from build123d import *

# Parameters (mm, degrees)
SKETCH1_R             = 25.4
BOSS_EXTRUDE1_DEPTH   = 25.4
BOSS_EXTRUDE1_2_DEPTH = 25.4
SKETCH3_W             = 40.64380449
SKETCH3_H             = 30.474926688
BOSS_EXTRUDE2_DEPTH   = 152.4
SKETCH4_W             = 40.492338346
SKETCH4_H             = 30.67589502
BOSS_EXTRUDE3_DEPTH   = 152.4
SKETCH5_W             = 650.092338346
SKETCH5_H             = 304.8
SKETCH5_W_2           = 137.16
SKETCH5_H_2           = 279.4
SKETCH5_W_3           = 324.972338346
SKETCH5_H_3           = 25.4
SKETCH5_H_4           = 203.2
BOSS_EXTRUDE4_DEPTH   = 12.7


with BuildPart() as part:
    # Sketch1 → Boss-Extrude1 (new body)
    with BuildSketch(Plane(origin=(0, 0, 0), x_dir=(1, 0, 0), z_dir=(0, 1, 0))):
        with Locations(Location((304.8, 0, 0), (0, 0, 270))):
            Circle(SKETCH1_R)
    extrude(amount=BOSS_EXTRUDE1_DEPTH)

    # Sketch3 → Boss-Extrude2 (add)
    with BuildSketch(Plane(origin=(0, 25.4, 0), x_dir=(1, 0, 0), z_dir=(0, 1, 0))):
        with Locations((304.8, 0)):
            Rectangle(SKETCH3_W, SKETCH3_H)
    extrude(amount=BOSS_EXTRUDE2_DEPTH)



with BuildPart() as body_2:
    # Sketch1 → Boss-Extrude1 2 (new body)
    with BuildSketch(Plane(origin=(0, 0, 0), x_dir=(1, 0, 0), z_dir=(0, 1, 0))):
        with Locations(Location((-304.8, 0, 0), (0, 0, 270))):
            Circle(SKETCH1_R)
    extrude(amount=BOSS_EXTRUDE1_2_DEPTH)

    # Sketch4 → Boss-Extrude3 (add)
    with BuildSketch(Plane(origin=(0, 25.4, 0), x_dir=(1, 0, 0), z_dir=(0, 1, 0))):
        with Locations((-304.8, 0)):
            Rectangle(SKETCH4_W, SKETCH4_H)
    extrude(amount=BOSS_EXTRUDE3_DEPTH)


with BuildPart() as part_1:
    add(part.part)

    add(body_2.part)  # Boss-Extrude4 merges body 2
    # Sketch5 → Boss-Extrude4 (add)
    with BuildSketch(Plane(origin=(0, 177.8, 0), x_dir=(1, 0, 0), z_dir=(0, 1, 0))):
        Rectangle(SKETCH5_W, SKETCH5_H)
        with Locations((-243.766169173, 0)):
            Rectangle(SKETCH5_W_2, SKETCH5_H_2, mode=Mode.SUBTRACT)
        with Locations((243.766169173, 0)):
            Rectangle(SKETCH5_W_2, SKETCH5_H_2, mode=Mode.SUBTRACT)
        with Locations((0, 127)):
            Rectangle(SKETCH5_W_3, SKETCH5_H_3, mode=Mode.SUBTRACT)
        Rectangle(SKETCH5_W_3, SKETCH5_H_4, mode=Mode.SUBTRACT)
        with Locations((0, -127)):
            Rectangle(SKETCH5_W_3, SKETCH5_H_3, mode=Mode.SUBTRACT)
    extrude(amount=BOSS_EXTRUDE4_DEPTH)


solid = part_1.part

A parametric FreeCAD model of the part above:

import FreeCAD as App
import Part
import Sketcher
from FreeCAD import Vector
Q = App.Units.Quantity


def add_polygon(sketch, points):
    """Adds a closed chain of lines whose ends are joined by coincident constraints."""
    first, n = sketch.GeometryCount, len(points)
    for a, b in zip(points, points[1:] + points[:1]):
        sketch.addGeometry(Part.LineSegment(App.Vector(*a, 0), App.Vector(*b, 0)), False)
    for i in range(n):
        sketch.addConstraint(Sketcher.Constraint("Coincident", first + i, 2, first + (i + 1) % n, 1))

doc = App.newDocument("Part")
body = doc.addObject("PartDesign::Body", "Body")

# Sketch on XZ plane
sketch1 = body.newObject("Sketcher::SketchObject", "Sketch")
sketch1.AttachmentSupport = (doc.getObject("XZ_Plane"), [""])
sketch1.MapMode = "FlatFace"
sketch1.addGeometry(Part.Circle(Vector(304.8, 0, 0), Vector(0, 0, 1), 25.4), False)
sketch1.addConstraint([
    Sketcher.Constraint("PointOnObject", 0, 3, -1),
    Sketcher.Constraint("Diameter", 0, Q("2 in")),
    Sketcher.Constraint("DistanceX", -1, 1, 0, 3, Q("12 in")),
])
pad1 = body.newObject("PartDesign::Pad", "Pad")
pad1.Profile = sketch1
pad1.Length = Q("1 in")
pad1.Reversed = True

# Sketch on XZ plane
sketch2 = body.newObject("Sketcher::SketchObject", "Sketch001")
sketch2.AttachmentSupport = (doc.getObject("XZ_Plane"), [""])
sketch2.MapMode = "FlatFace"
sketch2.AttachmentOffset = App.Placement(Vector(0, 0, -1 * 25.4), App.Rotation())
add_polygon(sketch2, [(284.478098, -15.237463), (284.478098, 15.237463), (325.121902, 15.237463), (325.121902, -15.237463)])  # lines 0-3
sketch2.addConstraint([
    Sketcher.Constraint("Vertical", 0),
    Sketcher.Constraint("Horizontal", 1),
    Sketcher.Constraint("Vertical", 2),
    Sketcher.Constraint("Horizontal", 3),
    Sketcher.Constraint("DistanceY", -1, 1, 0, 2, Q("0.5999001 in")),
    Sketcher.Constraint("DistanceY", 2, 2, -1, 1, Q("0.5999001 in")),
    Sketcher.Constraint("DistanceX", 1, 1, 1, 2, Q("40.643804 mm")),
    Sketcher.Constraint("DistanceX", -1, 1, 0, 2, Q("284.478098 mm")),
])
pad2 = body.newObject("PartDesign::Pad", "Pad001")
pad2.Profile = sketch2
pad2.Length = Q("6 in")
pad2.Reversed = True
body2 = doc.addObject("PartDesign::Body", "Body001")

# Sketch on XZ plane
sketch3 = body2.newObject("Sketcher::SketchObject", "Sketch002")
sketch3.AttachmentSupport = (doc.getObject("XZ_Plane001"), [""])
sketch3.MapMode = "FlatFace"
sketch3.addGeometry(Part.Circle(Vector(-304.8, 0, 0), Vector(0, 0, 1), 25.4), False)
sketch3.addConstraint([
    Sketcher.Constraint("PointOnObject", 0, 3, -1),
    Sketcher.Constraint("Diameter", 0, Q("2 in")),
    Sketcher.Constraint("DistanceX", 0, 3, -1, 1, Q("12 in")),
])
pad3 = body2.newObject("PartDesign::Pad", "Pad002")
pad3.Profile = sketch3
pad3.Length = Q("1 in")
pad3.Reversed = True

# Sketch on XZ plane
sketch4 = body2.newObject("Sketcher::SketchObject", "Sketch003")
sketch4.AttachmentSupport = (doc.getObject("XZ_Plane001"), [""])
sketch4.MapMode = "FlatFace"
sketch4.AttachmentOffset = App.Placement(Vector(0, 0, -1 * 25.4), App.Rotation())
add_polygon(sketch4, [(-325.046169, -15.337948), (-325.046169, 15.337948), (-284.553831, 15.337948), (-284.553831, -15.337948)])  # lines 0-3
sketch4.addConstraint([
    Sketcher.Constraint("Vertical", 0),
    Sketcher.Constraint("Horizontal", 1),
    Sketcher.Constraint("Vertical", 2),
    Sketcher.Constraint("Horizontal", 3),
    Sketcher.Constraint("DistanceX", 1, 1, 1, 2, Q("40.492338 mm")),
    Sketcher.Constraint("DistanceY", 0, 1, 0, 2, Q("30.675895 mm")),
    Sketcher.Constraint("DistanceX", 0, 2, -1, 1, Q("325.046169 mm")),
    Sketcher.Constraint("DistanceY", -1, 1, 0, 2, Q("15.337948 mm")),
])
pad4 = body2.newObject("PartDesign::Pad", "Pad003")
pad4.Profile = sketch4
pad4.Length = Q("6 in")
pad4.Reversed = True
body.AllowCompound = True
doc.recompute()

boolean = body.newObject("PartDesign::Boolean", "Boolean")
boolean.Type = "Fuse"
boolean.addObjects([body2])

# Sketch on XZ plane
sketch5 = body.newObject("Sketcher::SketchObject", "Sketch004")
sketch5.AttachmentSupport = (doc.getObject("XZ_Plane"), [""])
sketch5.MapMode = "FlatFace"
sketch5.AttachmentOffset = App.Placement(Vector(0, 0, -7 * 25.4), App.Rotation())
add_polygon(sketch5, [(-325.046169, -152.4), (-325.046169, 152.4), (325.046169, 152.4), (325.046169, -152.4)])  # lines 0-3
add_polygon(sketch5, [(162.486169, 139.7), (-162.486169, 139.7), (-162.486169, 114.3), (162.486169, 114.3)])  # lines 4-7
add_polygon(sketch5, [(-175.186169, 139.7), (-312.346169, 139.7), (-312.346169, -139.7), (-175.186169, -139.7)])  # lines 8-11
add_polygon(sketch5, [(162.486169, 101.6), (-162.486169, 101.6), (-162.486169, -101.6), (162.486169, -101.6)])  # lines 12-15
add_polygon(sketch5, [(312.346169, 139.7), (175.186169, 139.7), (175.186169, -139.7), (312.346169, -139.7)])  # lines 16-19
add_polygon(sketch5, [(162.486169, -114.3), (-162.486169, -114.3), (-162.486169, -139.7), (162.486169, -139.7)])  # lines 20-23
sketch5.addConstraint([
    Sketcher.Constraint("Vertical", 0),
    Sketcher.Constraint("Horizontal", 1),
    Sketcher.Constraint("Vertical", 2),
    Sketcher.Constraint("Horizontal", 3),
    Sketcher.Constraint("Horizontal", 4),
    Sketcher.Constraint("Vertical", 5),
    Sketcher.Constraint("Horizontal", 6),
    Sketcher.Constraint("Vertical", 7),
    Sketcher.Constraint("Horizontal", 8),
    Sketcher.Constraint("Vertical", 9),
    Sketcher.Constraint("Horizontal", 10),
    Sketcher.Constraint("Vertical", 11),
    Sketcher.Constraint("Horizontal", 12),
    Sketcher.Constraint("Vertical", 13),
    Sketcher.Constraint("Horizontal", 14),
    Sketcher.Constraint("Vertical", 15),
    Sketcher.Constraint("Horizontal", 16),
    Sketcher.Constraint("Vertical", 17),
    Sketcher.Constraint("Horizontal", 18),
    Sketcher.Constraint("Vertical", 19),
    Sketcher.Constraint("Horizontal", 20),
    Sketcher.Constraint("Vertical", 21),
    Sketcher.Constraint("Horizontal", 22),
    Sketcher.Constraint("Vertical", 23),
    Sketcher.Constraint("Symmetric", 0, 2, 2, 2, -1, 1),
    Sketcher.Constraint("Symmetric", 12, 2, 14, 2, -1, 1),
    Sketcher.Constraint("Symmetric", 10, 2, 16, 2, -1, 1),
    Sketcher.Constraint("Symmetric", 8, 2, 18, 2, -1, 1),
    Sketcher.Constraint("Symmetric", 6, 2, 20, 2, -1, 1),
    Sketcher.Constraint("Symmetric", 4, 2, 22, 2, -1, 1),
    Sketcher.Constraint("Horizontal", 7, 2, 8, 2),
    Sketcher.Constraint("Horizontal", 11, 2, 16, 2),
    Sketcher.Constraint("Vertical", 5, 2, 12, 2),
    Sketcher.Constraint("Vertical", 7, 2, 14, 2),
    Sketcher.Constraint("DistanceY", 0, 1, 0, 2, Q("12 in")),
    Sketcher.Constraint("DistanceY", 5, 2, 5, 1, Q("1 in")),
    Sketcher.Constraint("DistanceY", 9, 2, 9, 1, Q("11 in")),
    Sketcher.Constraint("DistanceY", 13, 2, 13, 1, Q("8 in")),
    Sketcher.Constraint("DistanceX", 8, 2, 8, 1, Q("5.4 in")),
    Sketcher.Constraint("DistanceX", 0, 2, 4, 2, Q("6.4 in")),
    Sketcher.Constraint("DistanceX", 0, 2, 8, 2, Q("0.5 in")),
    Sketcher.Constraint("DistanceX", 1, 1, 1, 2, Q("650.092338 mm")),
])
pad5 = body.newObject("PartDesign::Pad", "Pad004")
pad5.Profile = sketch5
pad5.Length = Q("0.5 in")
pad5.Reversed = True

doc.recompute()
